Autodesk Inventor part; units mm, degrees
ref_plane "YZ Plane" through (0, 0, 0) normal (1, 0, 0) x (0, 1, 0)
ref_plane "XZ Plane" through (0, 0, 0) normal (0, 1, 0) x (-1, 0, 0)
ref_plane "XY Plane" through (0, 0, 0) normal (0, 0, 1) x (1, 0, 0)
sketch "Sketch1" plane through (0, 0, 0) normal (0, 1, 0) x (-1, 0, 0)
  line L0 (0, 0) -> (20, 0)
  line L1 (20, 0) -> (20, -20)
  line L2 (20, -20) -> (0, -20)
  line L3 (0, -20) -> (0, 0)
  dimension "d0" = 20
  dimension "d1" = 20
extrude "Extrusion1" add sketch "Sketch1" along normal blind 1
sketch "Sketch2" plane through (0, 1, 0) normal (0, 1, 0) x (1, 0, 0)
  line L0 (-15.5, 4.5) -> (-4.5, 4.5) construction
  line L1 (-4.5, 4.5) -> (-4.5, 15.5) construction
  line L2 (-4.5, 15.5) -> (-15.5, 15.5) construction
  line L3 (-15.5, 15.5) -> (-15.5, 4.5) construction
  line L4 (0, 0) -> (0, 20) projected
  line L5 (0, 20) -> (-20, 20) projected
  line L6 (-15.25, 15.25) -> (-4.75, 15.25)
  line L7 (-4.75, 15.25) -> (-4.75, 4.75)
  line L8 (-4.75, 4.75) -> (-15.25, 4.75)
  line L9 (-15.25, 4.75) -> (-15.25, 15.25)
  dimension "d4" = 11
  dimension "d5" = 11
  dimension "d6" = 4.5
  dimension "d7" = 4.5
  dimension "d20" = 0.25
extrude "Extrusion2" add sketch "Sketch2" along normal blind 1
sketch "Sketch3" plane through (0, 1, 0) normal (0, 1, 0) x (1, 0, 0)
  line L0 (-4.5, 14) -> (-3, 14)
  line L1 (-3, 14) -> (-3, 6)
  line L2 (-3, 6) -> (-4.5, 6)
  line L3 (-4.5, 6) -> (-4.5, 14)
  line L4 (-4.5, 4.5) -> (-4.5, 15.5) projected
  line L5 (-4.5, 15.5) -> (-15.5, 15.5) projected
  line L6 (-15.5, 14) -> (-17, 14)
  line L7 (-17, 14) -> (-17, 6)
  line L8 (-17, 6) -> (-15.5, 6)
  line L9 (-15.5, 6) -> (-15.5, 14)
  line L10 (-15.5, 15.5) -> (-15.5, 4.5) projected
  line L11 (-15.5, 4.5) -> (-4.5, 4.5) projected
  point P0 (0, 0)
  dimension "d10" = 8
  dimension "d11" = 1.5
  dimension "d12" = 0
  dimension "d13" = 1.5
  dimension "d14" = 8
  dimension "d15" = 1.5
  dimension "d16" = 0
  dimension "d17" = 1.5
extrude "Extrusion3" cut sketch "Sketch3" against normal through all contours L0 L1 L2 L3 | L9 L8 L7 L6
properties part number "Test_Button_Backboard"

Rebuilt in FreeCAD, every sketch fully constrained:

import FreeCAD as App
import Part
import Sketcher


def add_polygon(sketch, points):
    """Adds a closed chain of lines whose ends are joined by coincident constraints."""
    first, n = sketch.GeometryCount, len(points)
    for a, b in zip(points, points[1:] + points[:1]):
        sketch.addGeometry(Part.LineSegment(App.Vector(*a, 0), App.Vector(*b, 0)), False)
    for i in range(n):
        sketch.addConstraint(Sketcher.Constraint("Coincident", first + i, 2, first + (i + 1) % n, 1))

doc = App.newDocument("Part")
body = doc.addObject("PartDesign::Body", "Body")

sketch1 = body.newObject("Sketcher::SketchObject", "Sketch")
sketch1.AttachmentSupport = (doc.getObject("XZ_Plane"), [""])
sketch1.MapMode = "FlatFace"
add_polygon(sketch1, [(-20, 0), (0, 0), (0, -20), (-20, -20)])
sketch1.addConstraint([
    Sketcher.Constraint("Horizontal", 0),
    Sketcher.Constraint("Vertical", 1),
    Sketcher.Constraint("Horizontal", 2),
    Sketcher.Constraint("Vertical", 3),
    Sketcher.Constraint("Coincident", 0, 2, -1, 1),
    Sketcher.Constraint("Equal", 2, 1),
    Sketcher.Constraint("DistanceX", 0, 1, 0, 2, 20.0),
])
pad1 = body.newObject("PartDesign::Pad", "Pad")
pad1.Profile = sketch1
pad1.Length = 1
pad1.Reversed = True

sketch2 = body.newObject("Sketcher::SketchObject", "Sketch001")
sketch2.AttachmentSupport = (doc.getObject("XZ_Plane"), [""])
sketch2.MapMode = "FlatFace"
sketch2.AttachmentOffset = App.Placement(App.Vector(0, 0, -1), App.Rotation())
add_polygon(sketch2, [(-5, -15), (-15, -15), (-15, -5), (-5, -5)])
sketch2.addConstraint([
    Sketcher.Constraint("Horizontal", 0),
    Sketcher.Constraint("Vertical", 1),
    Sketcher.Constraint("Horizontal", 2),
    Sketcher.Constraint("Vertical", 3),
    Sketcher.Constraint("Equal", 2, 1),
    Sketcher.Constraint("DistanceX", 0, 2, 0, 1, 10.5),
    Sketcher.Constraint("DistanceX", 0, 2, -1, 1, 15.25),
    Sketcher.Constraint("DistanceY", 0, 2, -1, 1, 15.25),
])
pad2 = body.newObject("PartDesign::Pad", "Pad001")
pad2.Profile = sketch2
pad2.Length = 1
pad2.Reversed = True

sketch3 = body.newObject("Sketcher::SketchObject", "Sketch002")
sketch3.AttachmentSupport = (doc.getObject("XZ_Plane"), [""])
sketch3.MapMode = "FlatFace"
sketch3.AttachmentOffset = App.Placement(App.Vector(0, 0, -1), App.Rotation())
add_polygon(sketch3, [(-3, -14), (-4.5, -14), (-4.5, -6), (-3, -6)])
add_polygon(sketch3, [(-15.5, -6), (-15.5, -14), (-17, -14), (-17, -6)])
sketch3.addConstraint([
    Sketcher.Constraint("Horizontal", 0),
    Sketcher.Constraint("Vertical", 1),
    Sketcher.Constraint("Horizontal", 2),
    Sketcher.Constraint("Vertical", 3),
    Sketcher.Constraint("Vertical", 4),
    Sketcher.Constraint("Horizontal", 5),
    Sketcher.Constraint("Vertical", 6),
    Sketcher.Constraint("Horizontal", 7),
    Sketcher.Constraint("Horizontal", 3, 2, 4, 2),
    Sketcher.Constraint("Horizontal", 2, 2, 6, 2),
    Sketcher.Constraint("Equal", 2, 5),
    Sketcher.Constraint("DistanceY", 1, 1, 1, 2, 8.0),
    Sketcher.Constraint("DistanceX", 0, 2, 0, 1, 1.5),
    Sketcher.Constraint("DistanceY", 0, 2, -1, 1, 14.0),
    Sketcher.Constraint("DistanceX", 2, 2, -1, 1, 3.0),
    Sketcher.Constraint("DistanceX", 5, 2, -1, 1, 17.0),
])
pocket1 = body.newObject("PartDesign::Pocket", "Pocket")
pocket1.Profile = sketch3
pocket1.Type = "ThroughAll"
pocket1.Reversed = True

doc.recompute()
